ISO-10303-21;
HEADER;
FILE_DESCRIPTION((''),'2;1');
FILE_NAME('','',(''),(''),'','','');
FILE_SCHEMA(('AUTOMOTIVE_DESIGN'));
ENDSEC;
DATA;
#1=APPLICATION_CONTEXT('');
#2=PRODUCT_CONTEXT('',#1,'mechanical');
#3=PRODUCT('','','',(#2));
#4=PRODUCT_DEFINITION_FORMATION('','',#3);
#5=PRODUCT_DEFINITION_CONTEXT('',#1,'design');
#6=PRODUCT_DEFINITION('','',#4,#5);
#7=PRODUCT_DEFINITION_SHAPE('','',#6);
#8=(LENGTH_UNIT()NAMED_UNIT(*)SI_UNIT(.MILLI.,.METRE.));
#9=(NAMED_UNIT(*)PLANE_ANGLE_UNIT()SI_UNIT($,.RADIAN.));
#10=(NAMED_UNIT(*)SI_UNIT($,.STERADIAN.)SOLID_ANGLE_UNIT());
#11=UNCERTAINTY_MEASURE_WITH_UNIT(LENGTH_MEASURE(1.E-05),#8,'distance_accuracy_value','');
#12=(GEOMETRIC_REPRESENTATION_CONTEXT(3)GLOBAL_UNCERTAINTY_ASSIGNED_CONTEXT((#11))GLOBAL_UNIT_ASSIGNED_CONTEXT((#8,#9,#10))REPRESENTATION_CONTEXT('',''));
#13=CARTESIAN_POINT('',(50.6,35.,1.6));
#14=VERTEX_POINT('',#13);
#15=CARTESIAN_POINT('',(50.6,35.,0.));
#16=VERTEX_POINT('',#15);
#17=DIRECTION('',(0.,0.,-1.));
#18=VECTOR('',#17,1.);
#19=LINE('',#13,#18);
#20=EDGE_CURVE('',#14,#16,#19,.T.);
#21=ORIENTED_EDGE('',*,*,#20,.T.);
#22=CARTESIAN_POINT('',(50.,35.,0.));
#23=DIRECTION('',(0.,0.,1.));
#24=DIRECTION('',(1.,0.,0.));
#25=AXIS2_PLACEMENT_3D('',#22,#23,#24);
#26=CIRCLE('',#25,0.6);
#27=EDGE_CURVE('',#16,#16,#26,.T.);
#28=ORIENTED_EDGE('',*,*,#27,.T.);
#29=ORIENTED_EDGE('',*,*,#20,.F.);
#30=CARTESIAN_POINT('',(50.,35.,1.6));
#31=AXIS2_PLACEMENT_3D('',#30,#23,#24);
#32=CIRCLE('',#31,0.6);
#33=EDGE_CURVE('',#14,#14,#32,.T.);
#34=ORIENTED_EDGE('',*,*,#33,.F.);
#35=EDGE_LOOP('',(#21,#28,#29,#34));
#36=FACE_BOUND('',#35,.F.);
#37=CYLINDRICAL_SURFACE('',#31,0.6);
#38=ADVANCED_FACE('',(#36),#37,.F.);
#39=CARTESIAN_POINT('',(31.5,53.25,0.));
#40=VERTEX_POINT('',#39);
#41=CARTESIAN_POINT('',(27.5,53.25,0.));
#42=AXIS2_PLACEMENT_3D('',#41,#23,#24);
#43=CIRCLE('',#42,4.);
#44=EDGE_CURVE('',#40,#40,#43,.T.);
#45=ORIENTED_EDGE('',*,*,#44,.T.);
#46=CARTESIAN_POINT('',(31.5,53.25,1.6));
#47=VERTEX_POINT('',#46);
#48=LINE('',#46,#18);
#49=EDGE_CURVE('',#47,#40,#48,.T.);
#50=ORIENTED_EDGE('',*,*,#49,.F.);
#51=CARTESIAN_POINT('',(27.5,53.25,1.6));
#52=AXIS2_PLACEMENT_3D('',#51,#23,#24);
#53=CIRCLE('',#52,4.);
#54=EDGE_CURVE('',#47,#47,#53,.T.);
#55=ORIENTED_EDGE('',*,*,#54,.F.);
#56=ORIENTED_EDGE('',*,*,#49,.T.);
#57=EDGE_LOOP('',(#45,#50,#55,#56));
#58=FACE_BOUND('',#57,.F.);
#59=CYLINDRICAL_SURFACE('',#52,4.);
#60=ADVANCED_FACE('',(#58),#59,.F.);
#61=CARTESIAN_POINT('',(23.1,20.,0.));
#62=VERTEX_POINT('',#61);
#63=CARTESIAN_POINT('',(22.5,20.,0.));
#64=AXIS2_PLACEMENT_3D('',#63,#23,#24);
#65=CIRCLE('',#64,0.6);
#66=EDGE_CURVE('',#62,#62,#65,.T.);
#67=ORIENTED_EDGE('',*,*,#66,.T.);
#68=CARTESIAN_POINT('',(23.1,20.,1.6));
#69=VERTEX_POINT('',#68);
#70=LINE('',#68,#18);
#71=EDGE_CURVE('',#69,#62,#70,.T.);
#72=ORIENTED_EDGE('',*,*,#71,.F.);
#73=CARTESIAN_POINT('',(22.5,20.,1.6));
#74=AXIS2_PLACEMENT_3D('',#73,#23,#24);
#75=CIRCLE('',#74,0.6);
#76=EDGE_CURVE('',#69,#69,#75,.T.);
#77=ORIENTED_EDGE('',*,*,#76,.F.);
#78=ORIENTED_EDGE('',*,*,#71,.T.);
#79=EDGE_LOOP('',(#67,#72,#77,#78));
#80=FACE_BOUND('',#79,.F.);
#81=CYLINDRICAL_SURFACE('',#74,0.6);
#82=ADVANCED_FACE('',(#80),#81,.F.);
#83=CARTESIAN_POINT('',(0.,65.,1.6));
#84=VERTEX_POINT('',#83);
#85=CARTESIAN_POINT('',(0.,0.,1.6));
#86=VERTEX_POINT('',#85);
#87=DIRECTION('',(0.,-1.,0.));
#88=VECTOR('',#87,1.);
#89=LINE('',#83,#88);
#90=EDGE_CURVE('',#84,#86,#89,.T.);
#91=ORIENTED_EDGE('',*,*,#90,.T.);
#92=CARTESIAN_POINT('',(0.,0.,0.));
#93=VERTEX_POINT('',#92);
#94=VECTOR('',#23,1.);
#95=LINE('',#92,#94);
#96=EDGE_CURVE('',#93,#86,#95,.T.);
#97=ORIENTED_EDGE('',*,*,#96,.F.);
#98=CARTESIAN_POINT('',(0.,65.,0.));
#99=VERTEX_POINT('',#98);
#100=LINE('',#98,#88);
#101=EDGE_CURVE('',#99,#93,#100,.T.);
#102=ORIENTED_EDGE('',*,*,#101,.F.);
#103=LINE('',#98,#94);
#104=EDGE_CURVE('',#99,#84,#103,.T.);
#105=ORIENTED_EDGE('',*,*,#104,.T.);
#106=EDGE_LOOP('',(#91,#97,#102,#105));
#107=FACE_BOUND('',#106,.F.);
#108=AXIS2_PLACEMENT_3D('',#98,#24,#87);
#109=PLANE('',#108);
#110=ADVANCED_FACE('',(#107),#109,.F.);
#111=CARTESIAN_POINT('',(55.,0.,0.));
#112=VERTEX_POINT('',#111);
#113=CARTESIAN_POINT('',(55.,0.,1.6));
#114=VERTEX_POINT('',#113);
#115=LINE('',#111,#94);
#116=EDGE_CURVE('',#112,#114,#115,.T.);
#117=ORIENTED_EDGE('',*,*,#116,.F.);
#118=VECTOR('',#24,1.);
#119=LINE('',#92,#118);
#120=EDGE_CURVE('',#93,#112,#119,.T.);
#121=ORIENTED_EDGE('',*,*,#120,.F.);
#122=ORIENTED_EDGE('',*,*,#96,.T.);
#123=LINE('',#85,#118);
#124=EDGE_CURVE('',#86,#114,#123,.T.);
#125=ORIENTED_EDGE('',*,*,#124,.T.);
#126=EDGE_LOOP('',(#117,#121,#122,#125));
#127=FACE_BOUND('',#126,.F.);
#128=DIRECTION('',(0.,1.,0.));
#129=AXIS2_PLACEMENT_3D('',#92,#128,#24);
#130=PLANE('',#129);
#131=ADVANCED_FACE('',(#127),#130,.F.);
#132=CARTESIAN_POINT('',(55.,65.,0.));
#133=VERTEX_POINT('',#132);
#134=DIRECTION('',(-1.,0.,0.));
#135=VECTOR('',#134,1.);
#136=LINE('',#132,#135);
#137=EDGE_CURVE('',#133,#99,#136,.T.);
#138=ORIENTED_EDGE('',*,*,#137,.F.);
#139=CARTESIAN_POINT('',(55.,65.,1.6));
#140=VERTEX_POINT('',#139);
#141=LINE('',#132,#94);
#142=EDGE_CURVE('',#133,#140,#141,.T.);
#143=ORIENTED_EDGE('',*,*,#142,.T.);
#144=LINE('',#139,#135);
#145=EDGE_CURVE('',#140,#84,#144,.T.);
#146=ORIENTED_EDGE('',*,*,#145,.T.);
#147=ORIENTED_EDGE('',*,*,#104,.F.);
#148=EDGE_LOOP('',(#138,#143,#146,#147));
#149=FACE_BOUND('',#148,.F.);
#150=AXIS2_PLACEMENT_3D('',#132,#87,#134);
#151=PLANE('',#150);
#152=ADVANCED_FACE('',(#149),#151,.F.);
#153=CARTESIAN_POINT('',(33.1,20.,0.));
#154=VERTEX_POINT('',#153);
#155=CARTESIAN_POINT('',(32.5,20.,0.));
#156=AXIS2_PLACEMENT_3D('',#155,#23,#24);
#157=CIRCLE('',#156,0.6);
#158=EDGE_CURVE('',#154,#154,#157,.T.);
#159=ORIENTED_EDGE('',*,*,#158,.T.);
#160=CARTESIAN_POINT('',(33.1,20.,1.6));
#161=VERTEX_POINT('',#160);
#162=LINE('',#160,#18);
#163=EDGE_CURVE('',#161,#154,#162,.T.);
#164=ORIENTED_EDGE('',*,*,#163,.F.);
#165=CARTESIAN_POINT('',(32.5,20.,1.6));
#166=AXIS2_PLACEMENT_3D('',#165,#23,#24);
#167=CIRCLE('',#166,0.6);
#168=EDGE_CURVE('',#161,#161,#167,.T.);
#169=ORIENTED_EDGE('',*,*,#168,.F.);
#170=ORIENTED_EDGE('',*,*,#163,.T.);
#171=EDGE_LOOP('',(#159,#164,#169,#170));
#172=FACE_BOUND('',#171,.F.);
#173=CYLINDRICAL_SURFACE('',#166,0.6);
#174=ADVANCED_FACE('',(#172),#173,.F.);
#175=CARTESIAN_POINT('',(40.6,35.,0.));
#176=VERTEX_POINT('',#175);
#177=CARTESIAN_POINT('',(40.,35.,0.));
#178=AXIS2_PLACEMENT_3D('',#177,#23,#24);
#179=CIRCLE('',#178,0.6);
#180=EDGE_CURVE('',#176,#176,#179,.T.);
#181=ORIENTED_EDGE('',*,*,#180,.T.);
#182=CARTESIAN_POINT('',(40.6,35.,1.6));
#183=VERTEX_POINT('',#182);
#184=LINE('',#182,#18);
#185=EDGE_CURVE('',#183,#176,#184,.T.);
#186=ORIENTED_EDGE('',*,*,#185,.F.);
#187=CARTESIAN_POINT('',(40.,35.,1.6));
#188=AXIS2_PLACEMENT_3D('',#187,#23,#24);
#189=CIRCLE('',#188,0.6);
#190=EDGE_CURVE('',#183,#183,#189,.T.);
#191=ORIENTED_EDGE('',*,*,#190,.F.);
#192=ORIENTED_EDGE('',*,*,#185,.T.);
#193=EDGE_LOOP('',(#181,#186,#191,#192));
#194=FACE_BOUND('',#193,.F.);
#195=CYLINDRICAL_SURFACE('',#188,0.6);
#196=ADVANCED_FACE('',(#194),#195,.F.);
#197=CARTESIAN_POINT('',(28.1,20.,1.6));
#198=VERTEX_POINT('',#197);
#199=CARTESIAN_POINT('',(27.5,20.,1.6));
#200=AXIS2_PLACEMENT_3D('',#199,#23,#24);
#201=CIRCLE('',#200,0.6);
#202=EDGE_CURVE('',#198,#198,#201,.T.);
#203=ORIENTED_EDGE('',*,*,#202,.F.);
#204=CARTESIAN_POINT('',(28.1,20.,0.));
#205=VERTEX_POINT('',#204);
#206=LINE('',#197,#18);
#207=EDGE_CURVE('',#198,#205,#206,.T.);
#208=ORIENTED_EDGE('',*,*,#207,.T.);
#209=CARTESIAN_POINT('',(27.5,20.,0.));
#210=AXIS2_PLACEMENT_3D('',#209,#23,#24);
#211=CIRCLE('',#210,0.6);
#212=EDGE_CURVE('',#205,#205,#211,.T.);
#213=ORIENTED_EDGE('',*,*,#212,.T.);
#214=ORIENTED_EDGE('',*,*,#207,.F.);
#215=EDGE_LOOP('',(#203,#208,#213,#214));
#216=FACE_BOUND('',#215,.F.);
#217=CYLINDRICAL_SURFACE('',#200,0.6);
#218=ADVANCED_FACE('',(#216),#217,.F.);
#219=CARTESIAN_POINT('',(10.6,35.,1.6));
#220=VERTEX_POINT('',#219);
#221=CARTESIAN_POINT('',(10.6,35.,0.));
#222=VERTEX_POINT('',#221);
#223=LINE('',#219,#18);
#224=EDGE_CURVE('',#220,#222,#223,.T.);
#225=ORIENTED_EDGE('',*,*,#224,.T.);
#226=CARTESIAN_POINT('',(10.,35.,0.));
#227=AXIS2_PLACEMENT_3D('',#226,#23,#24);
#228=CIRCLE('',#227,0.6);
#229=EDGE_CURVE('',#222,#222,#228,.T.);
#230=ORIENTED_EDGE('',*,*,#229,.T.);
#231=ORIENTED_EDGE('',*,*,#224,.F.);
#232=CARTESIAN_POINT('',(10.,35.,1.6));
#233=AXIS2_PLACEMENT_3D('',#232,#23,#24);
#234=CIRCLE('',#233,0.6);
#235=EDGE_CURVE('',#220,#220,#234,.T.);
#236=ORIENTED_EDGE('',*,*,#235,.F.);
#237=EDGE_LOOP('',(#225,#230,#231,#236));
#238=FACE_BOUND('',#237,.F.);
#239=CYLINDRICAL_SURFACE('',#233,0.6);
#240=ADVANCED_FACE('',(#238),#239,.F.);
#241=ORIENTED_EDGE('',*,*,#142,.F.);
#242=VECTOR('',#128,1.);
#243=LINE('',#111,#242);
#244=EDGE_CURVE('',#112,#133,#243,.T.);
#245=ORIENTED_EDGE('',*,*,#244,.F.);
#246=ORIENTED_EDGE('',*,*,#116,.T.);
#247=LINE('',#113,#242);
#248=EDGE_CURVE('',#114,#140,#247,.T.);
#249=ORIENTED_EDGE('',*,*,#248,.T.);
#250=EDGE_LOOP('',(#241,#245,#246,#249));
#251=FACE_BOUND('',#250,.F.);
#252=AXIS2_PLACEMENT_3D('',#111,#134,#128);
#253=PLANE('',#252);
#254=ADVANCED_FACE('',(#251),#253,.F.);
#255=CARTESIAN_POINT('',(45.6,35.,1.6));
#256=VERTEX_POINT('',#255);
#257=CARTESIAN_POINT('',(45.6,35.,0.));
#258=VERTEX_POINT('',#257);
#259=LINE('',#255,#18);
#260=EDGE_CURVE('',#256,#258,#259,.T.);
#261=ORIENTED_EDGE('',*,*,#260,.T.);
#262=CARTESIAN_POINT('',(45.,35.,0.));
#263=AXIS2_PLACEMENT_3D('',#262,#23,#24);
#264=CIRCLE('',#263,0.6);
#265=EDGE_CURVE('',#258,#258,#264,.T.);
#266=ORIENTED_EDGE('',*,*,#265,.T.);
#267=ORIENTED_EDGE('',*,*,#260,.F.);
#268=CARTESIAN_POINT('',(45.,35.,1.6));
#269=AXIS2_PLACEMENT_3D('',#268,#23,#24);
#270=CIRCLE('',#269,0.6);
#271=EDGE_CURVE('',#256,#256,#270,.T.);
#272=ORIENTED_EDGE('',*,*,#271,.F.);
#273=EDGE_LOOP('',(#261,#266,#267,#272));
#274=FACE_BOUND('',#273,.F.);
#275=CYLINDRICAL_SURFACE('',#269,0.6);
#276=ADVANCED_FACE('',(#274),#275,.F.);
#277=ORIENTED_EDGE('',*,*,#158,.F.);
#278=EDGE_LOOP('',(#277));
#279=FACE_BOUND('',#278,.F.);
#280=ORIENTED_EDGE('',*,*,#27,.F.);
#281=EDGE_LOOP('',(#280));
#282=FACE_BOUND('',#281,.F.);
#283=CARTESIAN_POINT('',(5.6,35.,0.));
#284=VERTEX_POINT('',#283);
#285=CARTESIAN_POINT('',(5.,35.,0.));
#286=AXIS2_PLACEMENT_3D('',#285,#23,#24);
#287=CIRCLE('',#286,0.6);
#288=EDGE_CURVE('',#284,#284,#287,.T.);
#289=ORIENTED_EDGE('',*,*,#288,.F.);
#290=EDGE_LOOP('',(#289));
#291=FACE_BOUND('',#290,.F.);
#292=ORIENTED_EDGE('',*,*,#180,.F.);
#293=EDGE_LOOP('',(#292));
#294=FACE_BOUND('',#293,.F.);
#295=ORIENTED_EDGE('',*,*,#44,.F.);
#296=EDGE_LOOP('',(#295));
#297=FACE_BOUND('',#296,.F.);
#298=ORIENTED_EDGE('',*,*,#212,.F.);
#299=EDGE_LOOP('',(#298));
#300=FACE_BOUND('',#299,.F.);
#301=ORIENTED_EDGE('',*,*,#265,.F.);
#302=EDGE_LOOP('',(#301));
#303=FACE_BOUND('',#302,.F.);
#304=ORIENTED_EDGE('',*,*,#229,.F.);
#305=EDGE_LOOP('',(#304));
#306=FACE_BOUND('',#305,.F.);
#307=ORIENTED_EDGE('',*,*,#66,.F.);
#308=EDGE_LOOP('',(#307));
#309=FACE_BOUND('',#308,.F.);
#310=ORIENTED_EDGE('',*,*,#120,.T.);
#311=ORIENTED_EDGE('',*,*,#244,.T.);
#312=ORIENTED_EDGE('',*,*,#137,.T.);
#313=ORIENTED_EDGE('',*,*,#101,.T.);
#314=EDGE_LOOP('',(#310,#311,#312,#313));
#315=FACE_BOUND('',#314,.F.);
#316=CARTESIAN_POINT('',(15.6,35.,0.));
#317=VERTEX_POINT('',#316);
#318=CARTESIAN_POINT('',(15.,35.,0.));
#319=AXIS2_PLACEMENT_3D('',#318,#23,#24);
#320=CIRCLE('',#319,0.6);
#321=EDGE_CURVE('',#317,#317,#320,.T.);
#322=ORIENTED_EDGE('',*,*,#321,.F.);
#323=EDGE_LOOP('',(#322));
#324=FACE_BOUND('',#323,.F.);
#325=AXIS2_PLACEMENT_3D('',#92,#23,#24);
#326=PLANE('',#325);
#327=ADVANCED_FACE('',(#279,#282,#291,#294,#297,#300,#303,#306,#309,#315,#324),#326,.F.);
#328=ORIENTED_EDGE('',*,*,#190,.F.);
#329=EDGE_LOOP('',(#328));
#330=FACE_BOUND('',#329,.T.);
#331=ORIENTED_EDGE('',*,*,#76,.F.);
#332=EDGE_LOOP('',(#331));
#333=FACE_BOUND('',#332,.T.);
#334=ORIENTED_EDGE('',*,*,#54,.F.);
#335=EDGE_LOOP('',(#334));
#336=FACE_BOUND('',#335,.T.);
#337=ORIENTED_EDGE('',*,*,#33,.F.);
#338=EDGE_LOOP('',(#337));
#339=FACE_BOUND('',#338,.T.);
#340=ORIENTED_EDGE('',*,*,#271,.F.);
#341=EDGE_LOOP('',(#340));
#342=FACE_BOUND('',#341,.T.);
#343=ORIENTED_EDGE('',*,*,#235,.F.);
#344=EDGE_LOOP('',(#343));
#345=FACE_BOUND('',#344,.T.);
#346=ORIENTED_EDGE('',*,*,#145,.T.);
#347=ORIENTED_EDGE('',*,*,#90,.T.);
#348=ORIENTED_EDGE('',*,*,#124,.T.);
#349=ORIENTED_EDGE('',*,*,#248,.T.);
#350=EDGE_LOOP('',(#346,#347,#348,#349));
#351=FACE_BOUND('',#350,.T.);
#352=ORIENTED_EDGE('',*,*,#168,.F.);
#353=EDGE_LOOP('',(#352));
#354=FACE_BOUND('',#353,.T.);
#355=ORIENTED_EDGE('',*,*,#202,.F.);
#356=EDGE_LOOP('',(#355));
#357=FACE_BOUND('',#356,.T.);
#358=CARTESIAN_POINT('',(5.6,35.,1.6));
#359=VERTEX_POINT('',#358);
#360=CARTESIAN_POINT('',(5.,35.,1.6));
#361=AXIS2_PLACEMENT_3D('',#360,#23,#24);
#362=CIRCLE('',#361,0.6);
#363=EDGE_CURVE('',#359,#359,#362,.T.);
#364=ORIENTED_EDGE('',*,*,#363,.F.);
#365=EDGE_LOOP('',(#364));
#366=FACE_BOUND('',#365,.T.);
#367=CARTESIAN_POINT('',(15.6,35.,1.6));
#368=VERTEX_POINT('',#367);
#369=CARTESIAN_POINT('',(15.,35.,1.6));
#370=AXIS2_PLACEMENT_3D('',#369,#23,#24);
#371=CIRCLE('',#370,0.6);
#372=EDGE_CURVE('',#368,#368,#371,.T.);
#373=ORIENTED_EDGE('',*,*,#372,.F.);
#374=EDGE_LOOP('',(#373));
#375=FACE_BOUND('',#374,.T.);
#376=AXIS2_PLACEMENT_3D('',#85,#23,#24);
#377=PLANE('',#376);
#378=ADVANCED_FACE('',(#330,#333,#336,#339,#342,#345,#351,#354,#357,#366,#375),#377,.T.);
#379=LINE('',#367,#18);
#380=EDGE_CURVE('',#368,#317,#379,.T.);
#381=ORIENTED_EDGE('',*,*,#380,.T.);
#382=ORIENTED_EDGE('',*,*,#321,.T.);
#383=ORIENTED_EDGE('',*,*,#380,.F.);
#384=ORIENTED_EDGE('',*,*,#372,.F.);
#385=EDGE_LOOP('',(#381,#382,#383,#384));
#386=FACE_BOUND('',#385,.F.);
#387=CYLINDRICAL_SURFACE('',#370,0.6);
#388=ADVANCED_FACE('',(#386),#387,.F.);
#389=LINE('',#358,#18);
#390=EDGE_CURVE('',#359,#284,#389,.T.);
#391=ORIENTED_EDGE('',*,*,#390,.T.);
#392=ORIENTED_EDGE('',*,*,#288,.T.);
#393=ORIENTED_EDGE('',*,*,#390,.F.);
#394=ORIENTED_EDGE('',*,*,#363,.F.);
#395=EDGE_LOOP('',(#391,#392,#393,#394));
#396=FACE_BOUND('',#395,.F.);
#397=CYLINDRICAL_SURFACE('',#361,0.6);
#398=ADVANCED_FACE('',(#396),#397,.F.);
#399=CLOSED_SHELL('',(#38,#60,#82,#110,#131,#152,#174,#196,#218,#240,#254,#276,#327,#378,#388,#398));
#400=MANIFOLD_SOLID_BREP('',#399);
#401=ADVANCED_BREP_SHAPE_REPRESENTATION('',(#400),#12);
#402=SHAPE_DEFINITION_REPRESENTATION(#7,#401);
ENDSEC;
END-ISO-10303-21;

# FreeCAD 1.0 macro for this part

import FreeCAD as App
import Part
import Sketcher
from FreeCAD import Vector

doc = App.newDocument("Part")
body = doc.addObject("PartDesign::Body", "Body")

# Sketch on XY plane
sketch1 = body.newObject("Sketcher::SketchObject", "Sketch")
sketch1.AttachmentSupport = (doc.getObject("XY_Plane"), [""])
sketch1.MapMode = "FlatFace"
sketch1.addGeometry([
    Part.LineSegment(Vector(0, 65, 0), Vector(0, 0, 0)),
    Part.LineSegment(Vector(0, 0, 0), Vector(55, 0, 0)),
    Part.LineSegment(Vector(55, 0, 0), Vector(55, 65, 0)),
    Part.LineSegment(Vector(55, 65, 0), Vector(0, 65, 0)),
], False)
sketch1.addConstraint([
    Sketcher.Constraint("Coincident", 0, 2, 1, 1),
    Sketcher.Constraint("Coincident", 1, 2, 2, 1),
    Sketcher.Constraint("Coincident", 2, 2, 3, 1),
    Sketcher.Constraint("Coincident", 3, 2, 0, 1),
    Sketcher.Constraint("Vertical", 0),
    Sketcher.Constraint("Horizontal", 1),
    Sketcher.Constraint("Vertical", 2),
    Sketcher.Constraint("Horizontal", 3),
    Sketcher.Constraint("Coincident", 0, 2, -1, 1),
    Sketcher.Constraint("DistanceX", 1, 1, 1, 2, 55.0),
    Sketcher.Constraint("DistanceY", 0, 2, 0, 1, 65.0),
])
pad1 = body.newObject("PartDesign::Pad", "Pad")
pad1.Profile = sketch1
pad1.Length = 1.6

# Sketch on XY plane
sketch2 = body.newObject("Sketcher::SketchObject", "Sketch001")
sketch2.AttachmentSupport = (doc.getObject("XY_Plane"), [""])
sketch2.MapMode = "FlatFace"
sketch2.AttachmentOffset = App.Placement(Vector(0, 0, 1.6), App.Rotation())
sketch2.addGeometry([
    Part.Circle(Vector(50, 35, 0), Vector(0, 0, 1), 0.6),  # 0
    Part.Circle(Vector(45, 35, 0), Vector(0, 0, 1), 0.6),  # 1
    Part.Circle(Vector(40, 35, 0), Vector(0, 0, 1), 0.6),  # 2
    Part.Circle(Vector(32.5, 20, 0), Vector(0, 0, 1), 0.6),  # 3
    Part.Circle(Vector(27.5, 20, 0), Vector(0, 0, 1), 0.6),  # 4
    Part.Circle(Vector(22.5, 20, 0), Vector(0, 0, 1), 0.6),  # 5
    Part.Circle(Vector(15, 35, 0), Vector(0, 0, 1), 0.6),  # 6
    Part.Circle(Vector(10, 35, 0), Vector(0, 0, 1), 0.6),  # 7
    Part.Circle(Vector(5, 35, 0), Vector(0, 0, 1), 0.6),  # 8
], False)
sketch2.addConstraint([
    Sketcher.Constraint("Equal", 0, 1),
    Sketcher.Constraint("Equal", 1, 2),
    Sketcher.Constraint("Equal", 2, 3),
    Sketcher.Constraint("Equal", 3, 4),
    Sketcher.Constraint("Equal", 4, 5),
    Sketcher.Constraint("Equal", 5, 6),
    Sketcher.Constraint("Equal", 6, 7),
    Sketcher.Constraint("Equal", 7, 8),
    Sketcher.Constraint("Horizontal", 0, 3, 1, 3),
    Sketcher.Constraint("Horizontal", 1, 3, 2, 3),
    Sketcher.Constraint("Horizontal", 3, 3, 4, 3),
    Sketcher.Constraint("Horizontal", 4, 3, 5, 3),
    Sketcher.Constraint("Horizontal", 2, 3, 6, 3),
    Sketcher.Constraint("Horizontal", 6, 3, 7, 3),
    Sketcher.Constraint("Horizontal", 7, 3, 8, 3),
    Sketcher.Constraint("Diameter", 0, 1.2),
    Sketcher.Constraint("DistanceX", -1, 1, 6, 3, 15.0),
    Sketcher.Constraint("DistanceX", -1, 1, 8, 3, 5.0),
    Sketcher.Constraint("DistanceX", 1, 3, 0, 3, 5.0),
    Sketcher.Constraint("DistanceX", 2, 3, 1, 3, 5.0),
    Sketcher.Constraint("DistanceY", 3, 3, 2, 3, 15.0),
    Sketcher.Constraint("DistanceX", 4, 3, 3, 3, 5.0),
    Sketcher.Constraint("DistanceX", 5, 3, 4, 3, 5.0),
    Sketcher.Constraint("DistanceX", 6, 3, 1, 3, 30.0),
    Sketcher.Constraint("DistanceX", 7, 3, 6, 3, 5.0),
    Sketcher.Constraint("DistanceX", 3, 3, 0, 3, 17.5),
    Sketcher.Constraint("DistanceY", -1, 1, 0, 3, 35.0),
])
pocket1 = body.newObject("PartDesign::Pocket", "Pocket")
pocket1.Profile = sketch2
pocket1.Length = 1.6

# Sketch on XY plane
sketch3 = body.newObject("Sketcher::SketchObject", "Sketch002")
sketch3.AttachmentSupport = (doc.getObject("XY_Plane"), [""])
sketch3.MapMode = "FlatFace"
sketch3.AttachmentOffset = App.Placement(Vector(0, 0, 1.6), App.Rotation())
sketch3.addGeometry(Part.Circle(Vector(27.5, 53.2, 0), Vector(0, 0, 1), 4), False)
sketch3.addConstraint([
    Sketcher.Constraint("Diameter", 0, 8.0),
    Sketcher.Constraint("DistanceX", -1, 1, 0, 3, 27.5),
    Sketcher.Constraint("DistanceY", -1, 1, 0, 3, 53.25),
])
pocket2 = body.newObject("PartDesign::Pocket", "Pocket001")
pocket2.Profile = sketch3
pocket2.Length = 1.6

doc.recompute()
